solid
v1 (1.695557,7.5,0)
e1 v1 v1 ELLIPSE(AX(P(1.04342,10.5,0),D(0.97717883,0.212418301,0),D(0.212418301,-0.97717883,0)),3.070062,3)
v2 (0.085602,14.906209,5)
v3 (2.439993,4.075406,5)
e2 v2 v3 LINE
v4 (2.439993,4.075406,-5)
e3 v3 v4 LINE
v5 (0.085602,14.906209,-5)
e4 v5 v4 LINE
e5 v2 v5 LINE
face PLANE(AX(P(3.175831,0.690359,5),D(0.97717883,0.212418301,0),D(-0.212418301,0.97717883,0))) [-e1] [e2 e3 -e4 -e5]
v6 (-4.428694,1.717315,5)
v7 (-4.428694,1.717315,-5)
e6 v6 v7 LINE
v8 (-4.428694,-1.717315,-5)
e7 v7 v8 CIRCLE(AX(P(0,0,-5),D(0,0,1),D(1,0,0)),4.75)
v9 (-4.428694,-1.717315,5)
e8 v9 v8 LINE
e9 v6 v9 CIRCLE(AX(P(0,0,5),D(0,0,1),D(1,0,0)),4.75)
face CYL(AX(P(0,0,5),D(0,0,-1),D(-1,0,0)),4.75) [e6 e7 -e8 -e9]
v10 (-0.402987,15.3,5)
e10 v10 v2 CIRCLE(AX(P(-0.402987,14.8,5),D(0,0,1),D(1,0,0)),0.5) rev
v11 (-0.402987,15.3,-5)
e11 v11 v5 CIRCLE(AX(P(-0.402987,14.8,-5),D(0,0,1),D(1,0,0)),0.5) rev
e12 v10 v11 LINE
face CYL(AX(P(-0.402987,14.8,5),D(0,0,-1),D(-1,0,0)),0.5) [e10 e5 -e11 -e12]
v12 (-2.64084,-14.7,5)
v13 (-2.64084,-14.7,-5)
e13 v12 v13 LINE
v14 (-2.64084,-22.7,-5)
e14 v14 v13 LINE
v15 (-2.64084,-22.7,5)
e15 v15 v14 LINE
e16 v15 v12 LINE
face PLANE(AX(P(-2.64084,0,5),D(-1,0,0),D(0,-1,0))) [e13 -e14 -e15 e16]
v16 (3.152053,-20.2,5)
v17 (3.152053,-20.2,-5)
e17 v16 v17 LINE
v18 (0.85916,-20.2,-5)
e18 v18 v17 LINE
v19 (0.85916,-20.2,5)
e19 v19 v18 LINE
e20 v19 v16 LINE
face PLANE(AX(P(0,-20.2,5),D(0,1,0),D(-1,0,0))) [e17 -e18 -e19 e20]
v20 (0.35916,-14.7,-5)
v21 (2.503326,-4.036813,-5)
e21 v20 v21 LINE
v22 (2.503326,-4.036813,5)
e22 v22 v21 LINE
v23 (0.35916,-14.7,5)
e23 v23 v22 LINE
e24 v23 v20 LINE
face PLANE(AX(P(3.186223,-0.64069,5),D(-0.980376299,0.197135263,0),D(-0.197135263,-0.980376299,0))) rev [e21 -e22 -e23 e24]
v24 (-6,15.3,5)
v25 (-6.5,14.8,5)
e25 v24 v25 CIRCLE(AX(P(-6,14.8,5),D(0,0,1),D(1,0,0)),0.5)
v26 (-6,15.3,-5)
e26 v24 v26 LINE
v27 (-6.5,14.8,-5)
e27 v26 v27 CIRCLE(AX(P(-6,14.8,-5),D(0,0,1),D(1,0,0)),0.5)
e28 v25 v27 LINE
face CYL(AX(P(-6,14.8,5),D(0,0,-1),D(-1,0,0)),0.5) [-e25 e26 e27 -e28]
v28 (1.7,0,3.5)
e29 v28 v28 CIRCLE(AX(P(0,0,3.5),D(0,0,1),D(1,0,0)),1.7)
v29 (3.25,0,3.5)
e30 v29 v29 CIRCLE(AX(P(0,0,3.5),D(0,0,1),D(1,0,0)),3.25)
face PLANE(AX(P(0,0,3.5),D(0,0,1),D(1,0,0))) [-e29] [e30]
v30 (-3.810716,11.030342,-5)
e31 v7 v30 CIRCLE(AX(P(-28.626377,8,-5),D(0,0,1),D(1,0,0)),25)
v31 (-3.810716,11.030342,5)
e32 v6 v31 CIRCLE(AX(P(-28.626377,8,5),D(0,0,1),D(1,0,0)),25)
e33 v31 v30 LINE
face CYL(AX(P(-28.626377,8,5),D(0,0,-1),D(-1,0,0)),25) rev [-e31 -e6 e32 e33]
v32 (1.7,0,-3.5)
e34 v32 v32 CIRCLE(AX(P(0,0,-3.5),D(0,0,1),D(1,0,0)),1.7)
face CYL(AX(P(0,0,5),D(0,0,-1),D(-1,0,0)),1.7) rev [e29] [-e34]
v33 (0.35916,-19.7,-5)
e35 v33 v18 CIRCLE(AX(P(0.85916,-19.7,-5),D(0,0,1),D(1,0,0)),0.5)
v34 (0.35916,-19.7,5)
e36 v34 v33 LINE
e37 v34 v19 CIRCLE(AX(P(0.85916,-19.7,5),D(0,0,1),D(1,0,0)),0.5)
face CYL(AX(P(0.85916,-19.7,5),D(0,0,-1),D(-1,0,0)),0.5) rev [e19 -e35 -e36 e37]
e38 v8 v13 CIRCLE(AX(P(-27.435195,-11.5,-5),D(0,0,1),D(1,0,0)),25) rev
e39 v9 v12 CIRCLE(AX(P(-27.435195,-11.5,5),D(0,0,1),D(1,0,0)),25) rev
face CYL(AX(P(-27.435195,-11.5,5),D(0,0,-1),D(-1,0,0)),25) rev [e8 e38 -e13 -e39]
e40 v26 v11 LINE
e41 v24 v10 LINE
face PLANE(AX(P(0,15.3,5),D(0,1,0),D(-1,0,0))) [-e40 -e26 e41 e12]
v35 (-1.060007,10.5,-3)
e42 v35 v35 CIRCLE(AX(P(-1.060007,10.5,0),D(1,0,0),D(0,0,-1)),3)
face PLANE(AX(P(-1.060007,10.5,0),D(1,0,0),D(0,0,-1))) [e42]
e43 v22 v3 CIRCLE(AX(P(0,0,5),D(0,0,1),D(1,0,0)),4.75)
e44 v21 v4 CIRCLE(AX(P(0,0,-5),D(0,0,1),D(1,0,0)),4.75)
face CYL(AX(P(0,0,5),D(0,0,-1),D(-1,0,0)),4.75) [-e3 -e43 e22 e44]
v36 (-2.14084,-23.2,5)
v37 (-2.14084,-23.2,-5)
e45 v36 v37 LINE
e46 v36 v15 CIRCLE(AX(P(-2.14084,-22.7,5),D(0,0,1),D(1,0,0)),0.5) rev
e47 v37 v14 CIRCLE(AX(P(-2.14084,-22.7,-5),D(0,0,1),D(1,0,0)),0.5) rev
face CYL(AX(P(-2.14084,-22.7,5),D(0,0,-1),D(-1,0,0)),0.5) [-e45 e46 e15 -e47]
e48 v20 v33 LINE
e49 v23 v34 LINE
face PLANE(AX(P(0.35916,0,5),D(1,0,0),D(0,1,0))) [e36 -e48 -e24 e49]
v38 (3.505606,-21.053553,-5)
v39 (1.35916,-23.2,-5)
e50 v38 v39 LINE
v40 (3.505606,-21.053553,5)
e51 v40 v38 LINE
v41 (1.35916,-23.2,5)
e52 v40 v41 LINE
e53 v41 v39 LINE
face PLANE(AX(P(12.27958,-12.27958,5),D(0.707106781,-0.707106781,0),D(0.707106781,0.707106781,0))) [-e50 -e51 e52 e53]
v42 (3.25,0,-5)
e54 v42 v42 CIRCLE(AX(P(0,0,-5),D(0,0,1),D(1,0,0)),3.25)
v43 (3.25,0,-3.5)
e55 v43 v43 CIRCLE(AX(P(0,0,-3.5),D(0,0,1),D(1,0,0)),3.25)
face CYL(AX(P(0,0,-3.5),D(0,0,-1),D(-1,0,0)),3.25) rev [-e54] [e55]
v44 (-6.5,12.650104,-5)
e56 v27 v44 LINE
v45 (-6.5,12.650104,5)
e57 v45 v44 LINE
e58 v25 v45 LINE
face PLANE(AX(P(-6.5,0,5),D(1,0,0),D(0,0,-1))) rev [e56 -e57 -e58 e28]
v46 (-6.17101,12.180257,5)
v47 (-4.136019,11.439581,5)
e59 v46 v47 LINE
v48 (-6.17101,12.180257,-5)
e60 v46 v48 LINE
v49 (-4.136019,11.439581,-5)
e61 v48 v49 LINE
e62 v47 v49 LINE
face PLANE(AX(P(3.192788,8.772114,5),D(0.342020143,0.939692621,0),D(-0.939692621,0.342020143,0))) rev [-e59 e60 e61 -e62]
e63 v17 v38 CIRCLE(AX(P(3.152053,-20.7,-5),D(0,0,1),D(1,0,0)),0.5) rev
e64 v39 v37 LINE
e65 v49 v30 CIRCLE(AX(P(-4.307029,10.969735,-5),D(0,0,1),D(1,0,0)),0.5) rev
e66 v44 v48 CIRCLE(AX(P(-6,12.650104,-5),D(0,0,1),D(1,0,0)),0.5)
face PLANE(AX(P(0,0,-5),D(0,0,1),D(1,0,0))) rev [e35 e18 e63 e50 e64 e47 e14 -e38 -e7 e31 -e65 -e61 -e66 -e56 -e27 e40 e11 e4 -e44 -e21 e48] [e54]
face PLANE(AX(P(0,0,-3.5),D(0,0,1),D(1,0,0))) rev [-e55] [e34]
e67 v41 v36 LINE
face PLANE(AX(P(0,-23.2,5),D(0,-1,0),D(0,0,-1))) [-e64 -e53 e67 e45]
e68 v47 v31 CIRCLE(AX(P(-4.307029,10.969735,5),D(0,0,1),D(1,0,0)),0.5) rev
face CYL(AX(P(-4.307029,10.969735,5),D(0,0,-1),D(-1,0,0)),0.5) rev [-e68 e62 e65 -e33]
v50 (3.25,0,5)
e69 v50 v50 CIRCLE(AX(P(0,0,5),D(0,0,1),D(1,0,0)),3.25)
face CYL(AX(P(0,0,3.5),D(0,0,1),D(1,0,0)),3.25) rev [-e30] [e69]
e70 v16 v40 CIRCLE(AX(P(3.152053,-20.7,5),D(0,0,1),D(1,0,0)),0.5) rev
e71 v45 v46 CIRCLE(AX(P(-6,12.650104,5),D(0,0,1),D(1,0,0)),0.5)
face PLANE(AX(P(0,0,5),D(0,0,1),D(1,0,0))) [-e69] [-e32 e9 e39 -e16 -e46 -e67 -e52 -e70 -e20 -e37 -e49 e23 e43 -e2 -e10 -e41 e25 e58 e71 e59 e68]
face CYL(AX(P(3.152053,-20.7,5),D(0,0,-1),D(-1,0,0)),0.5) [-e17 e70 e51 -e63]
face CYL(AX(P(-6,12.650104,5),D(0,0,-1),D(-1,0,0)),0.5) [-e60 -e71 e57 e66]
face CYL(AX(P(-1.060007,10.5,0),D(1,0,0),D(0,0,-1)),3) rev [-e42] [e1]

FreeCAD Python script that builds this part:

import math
import FreeCAD as App
import Part
import Sketcher

V = App.Vector
Q = App.Units.Quantity

doc = App.newDocument("Part")
body = doc.addObject("PartDesign::Body", "Body")

# Sketch on XY plane
sketch1 = body.newObject("Sketcher::SketchObject", "Sketch")
sketch1.AttachmentSupport = (doc.getObject("XY_Plane"), [""])
sketch1.MapMode = "FlatFace"
sketch1.addGeometry([
    Part.LineSegment(V(-0.402987, 15.3, 0), V(-6, 15.3, 0)),  # 0
    Part.ArcOfCircle(Part.Circle(V(-6, 14.8, 0), V(0, 0, 1), 0.5), math.radians(90), math.radians(180)),  # 1
    Part.LineSegment(V(-6.5, 14.8, 0), V(-6.5, 12.650104, 0)),  # 2
    Part.ArcOfCircle(Part.Circle(V(-6, 12.650104, 0), V(0, 0, 1), 0.5), math.radians(180), math.radians(250)),  # 3
    Part.LineSegment(V(-6.17101, 12.180257, 0), V(-4.136019, 11.439581, 0)),  # 4
    Part.ArcOfCircle(Part.Circle(V(-4.307029, 10.969735, 0), V(0, 0, 1), 0.5), math.radians(6.962153), math.radians(70)),  # 5
    Part.ArcOfCircle(Part.Circle(V(-28.626377, 8, 0), V(0, 0, 1), 25), math.radians(-14.554892), math.radians(6.962152)),  # 6
    Part.ArcOfCircle(Part.Circle(V(0, 0, 0), V(0, 0, 1), 4.75), math.radians(158.805203), math.radians(201.194797)),  # 7
    Part.ArcOfCircle(Part.Circle(V(-27.435184, -11.499996, 0), V(0, 0, 1), 24.999989), math.radians(22.448026), math.radians(23.035875)),  # 8
    Part.ArcOfCircle(Part.Circle(V(-27.435195, -11.5, 0), V(0, 0, 1), 25), math.radians(-7.354035), math.radians(22.448026)),  # 9
    Part.LineSegment(V(-2.64084, -14.7, 0), V(-2.64084, -22.7, 0)),  # 10
    Part.ArcOfCircle(Part.Circle(V(-2.14084, -22.7, 0), V(0, 0, 1), 0.5), math.radians(180), math.radians(270)),  # 11
    Part.LineSegment(V(-2.14084, -23.2, 0), V(1.35916, -23.2, 0)),  # 12
    Part.LineSegment(V(1.35916, -23.2, 0), V(3.505606, -21.053553, 0)),  # 13
    Part.ArcOfCircle(Part.Circle(V(3.152053, -20.7, 0), V(0, 0, 1), 0.5), math.radians(-45), math.radians(90)),  # 14
    Part.LineSegment(V(3.152053, -20.2, 0), V(0.85916, -20.2, 0)),  # 15
    Part.ArcOfCircle(Part.Circle(V(0.85916, -19.7, 0), V(0, 0, 1), 0.5), math.radians(180), math.radians(270)),  # 16
    Part.LineSegment(V(0.35916, -19.7, 0), V(0.35916, -14.7, 0)),  # 17
    Part.LineSegment(V(0.35916, -14.7, 0), V(2.503326, -4.036813, 0)),  # 18
    Part.ArcOfCircle(Part.Circle(V(0, 0, 0), V(0, 0, 1), 4.75), math.radians(-58.195936), math.radians(0)),  # 19
    Part.ArcOfCircle(Part.Circle(V(0, 0, 0), V(0, 0, 1), 4.75), math.radians(0), math.radians(59.090557)),  # 20
    Part.LineSegment(V(2.439993, 4.075406, 0), V(0.085602, 14.906209, 0)),  # 21
    Part.ArcOfCircle(Part.Circle(V(-0.402987, 14.8, 0), V(0, 0, 1), 0.5), math.radians(12.264109), math.radians(90)),  # 22
    Part.Circle(V(0, 0, 0), V(0, 0, 1), 1.7),  # 23
], False)
sketch1.addConstraint([
    Sketcher.Constraint("Coincident", 0, 2, 1, 1),
    Sketcher.Constraint("Coincident", 1, 2, 2, 1),
    Sketcher.Constraint("Coincident", 2, 2, 3, 1),
    Sketcher.Constraint("Coincident", 3, 2, 4, 1),
    Sketcher.Constraint("Coincident", 4, 2, 5, 2),
    Sketcher.Constraint("Coincident", 5, 1, 6, 2),
    Sketcher.Constraint("Coincident", 6, 1, 7, 1),
    Sketcher.Constraint("Coincident", 7, 2, 8, 2),
    Sketcher.Constraint("Coincident", 8, 1, 9, 2),
    Sketcher.Constraint("Coincident", 9, 1, 10, 1),
    Sketcher.Constraint("Coincident", 10, 2, 11, 1),
    Sketcher.Constraint("Coincident", 11, 2, 12, 1),
    Sketcher.Constraint("Coincident", 12, 2, 13, 1),
    Sketcher.Constraint("Coincident", 13, 2, 14, 1),
    Sketcher.Constraint("Coincident", 14, 2, 15, 1),
    Sketcher.Constraint("Coincident", 15, 2, 16, 2),
    Sketcher.Constraint("Coincident", 16, 1, 17, 1),
    Sketcher.Constraint("Coincident", 17, 2, 18, 1),
    Sketcher.Constraint("Coincident", 18, 2, 19, 1),
    Sketcher.Constraint("Coincident", 19, 2, 20, 1),
    Sketcher.Constraint("Coincident", 20, 2, 21, 1),
    Sketcher.Constraint("Coincident", 21, 2, 22, 1),
    Sketcher.Constraint("Coincident", 22, 2, 0, 1),
    Sketcher.Constraint("Horizontal", 0),
    Sketcher.Constraint("Vertical", 2),
    Sketcher.Constraint("Vertical", 10),
    Sketcher.Constraint("Horizontal", 12),
    Sketcher.Constraint("Horizontal", 15),
    Sketcher.Constraint("Vertical", 17),
    Sketcher.Constraint("Coincident", 7, 3, -1, 1),
    Sketcher.Constraint("Coincident", 19, 3, -1, 1),
    Sketcher.Constraint("Coincident", 20, 3, -1, 1),
    Sketcher.Constraint("Coincident", 23, 3, -1, 1),
    Sketcher.Constraint("PointOnObject", 19, 2, -1),
    Sketcher.Constraint("Radius", 6, Q("25 mm")),
    Sketcher.Constraint("Radius", 9, Q("25 mm")),
    Sketcher.Constraint("Diameter", 23, Q("3.4 mm")),
    Sketcher.Constraint("Radius", 1, Q("0.5 mm")),
    Sketcher.Constraint("Radius", 3, Q("0.5 mm")),
    Sketcher.Constraint("Radius", 5, Q("0.5 mm")),
    Sketcher.Constraint("Radius", 11, Q("0.5 mm")),
    Sketcher.Constraint("Radius", 14, Q("0.5 mm")),
    Sketcher.Constraint("Radius", 16, Q("0.5 mm")),
    Sketcher.Constraint("Radius", 22, Q("0.5 mm")),
    Sketcher.Constraint("DistanceY", 10, 2, 10, 1, Q("8 mm")),
    Sketcher.Constraint("DistanceY", 17, 1, 17, 2, Q("5 mm")),
    Sketcher.Constraint("Radius", 7, Q("4.75 mm")),
    Sketcher.Constraint("Radius", 19, Q("4.75 mm")),
    Sketcher.Constraint("DistanceX", 12, 1, 12, 2, Q("3.5 mm")),
    Sketcher.Constraint("DistanceX", 1, 3, -1, 1, Q("6 mm")),
    Sketcher.Constraint("DistanceY", -1, 1, 6, 3, Q("8 mm")),
    Sketcher.Constraint("DistanceX", 0, 2, -1, 1, Q("6 mm")),
    Sketcher.Constraint("DistanceY", 11, 3, 14, 3, Q("2 mm")),
    Sketcher.Constraint("DistanceX", 11, 3, 16, 3, Q("3 mm")),
    Sketcher.Constraint("DistanceY", 16, 3, 9, 1, Q("5 mm")),
    Sketcher.Constraint("DistanceX", 11, 2, 16, 3, Q("3 mm")),
    Sketcher.Constraint("DistanceY", 14, 3, 16, 1, Q("1 mm")),
    Sketcher.Constraint("DistanceY", -1, 1, 1, 3, Q("14.8 mm")),
    Sketcher.Constraint("DistanceY", 9, 3, -1, 1, Q("11.5 mm")),
    Sketcher.Constraint("DistanceY", 11, 3, -1, 1, Q("22.7 mm")),
    Sketcher.Constraint("DistanceY", -1, 1, 1, 2, Q("14.8 mm")),
    Sketcher.Constraint("DistanceX", 15, 2, 12, 2, Q("0.5 mm")),
    Sketcher.Constraint("Radius", 8, Q("24.999989 mm")),
    Sketcher.Constraint("DistanceX", -1, 1, 21, 2, Q("0.085602 mm")),
    Sketcher.Constraint("DistanceY", 8, 3, 3, 3, Q("24.150099 mm")),
    Sketcher.Constraint("DistanceX", 0, 2, 0, 1, Q("5.597013 mm")),
    Sketcher.Constraint("DistanceX", 15, 2, 15, 1, Q("2.292893 mm")),
    Sketcher.Constraint("DistanceY", 2, 2, 2, 1, Q("2.149896 mm")),
    Sketcher.Constraint("DistanceX", 5, 3, -1, 1, Q("4.307029 mm")),
    Sketcher.Constraint("DistanceX", 11, 3, -1, 1, Q("2.14084 mm")),
    Sketcher.Constraint("DistanceX", 3, 2, -1, 1, Q("6.17101 mm")),
    Sketcher.Constraint("DistanceX", 4, 2, -1, 1, Q("4.136019 mm")),
    Sketcher.Constraint("DistanceY", -1, 1, 4, 2, Q("11.439581 mm")),
    Sketcher.Constraint("DistanceY", -1, 1, 5, 1, Q("11.030342 mm")),
    Sketcher.Constraint("DistanceY", 8, 1, -1, 1, Q("1.95387 mm")),
    Sketcher.Constraint("DistanceY", -1, 1, 21, 2, Q("14.906209 mm")),
    Sketcher.Constraint("DistanceY", 5, 3, 3, 3, Q("1.680369 mm")),
    Sketcher.Constraint("Distance", 13, Q("3.035534 mm")),
    Sketcher.Constraint("Distance", 18, Q("10.876627 mm")),
    Sketcher.Constraint("Distance", 21, Q("11.083747 mm")),
    Sketcher.Constraint("DistanceX", -1, 1, 14, 3, Q("3.152053 mm")),
])
pad1 = body.newObject("PartDesign::Pad", "Pad")
pad1.Profile = sketch1
pad1.Length = 10
pad1.Midplane = True

# Sketch on XY plane
sketch2 = body.newObject("Sketcher::SketchObject", "Sketch001")
sketch2.AttachmentSupport = (doc.getObject("XY_Plane"), [""])
sketch2.MapMode = "FlatFace"
sketch2.AttachmentOffset = App.Placement(V(0, 0, 5), App.Rotation())
sketch2.addGeometry(Part.Circle(V(0, 0, 0), V(0, 0, 1), 3.2), False)
sketch2.addConstraint([
    Sketcher.Constraint("Coincident", 0, 3, -1, 1),
    Sketcher.Constraint("Diameter", 0, Q("6.5 mm")),
])
pocket1 = body.newObject("PartDesign::Pocket", "Pocket")
pocket1.Profile = sketch2
pocket1.Length = 1.5

# Sketch on XY plane
sketch3 = body.newObject("Sketcher::SketchObject", "Sketch002")
sketch3.AttachmentSupport = (doc.getObject("XY_Plane"), [""])
sketch3.MapMode = "FlatFace"
sketch3.AttachmentOffset = App.Placement(V(0, 0, -5), App.Rotation())
sketch3.addGeometry(Part.Circle(V(0, 0, 0), V(0, 0, 1), 3.2), False)
sketch3.addConstraint([
    Sketcher.Constraint("Coincident", 0, 3, -1, 1),
    Sketcher.Constraint("Diameter", 0, Q("6.5 mm")),
])
pocket2 = body.newObject("PartDesign::Pocket", "Pocket001")
pocket2.Profile = sketch3
pocket2.Length = 1.5
pocket2.Reversed = True

# Sketch on YZ plane
sketch4 = body.newObject("Sketcher::SketchObject", "Sketch003")
sketch4.AttachmentSupport = (doc.getObject("YZ_Plane"), [""])
sketch4.MapMode = "FlatFace"
sketch4.AttachmentOffset = App.Placement(V(0, 0, 2.43999), App.Rotation())
sketch4.addGeometry(Part.Circle(V(10.5, 0, 0), V(0, 0, 1), 3), False)
sketch4.addConstraint([
    Sketcher.Constraint("PointOnObject", 0, 3, -1),
    Sketcher.Constraint("Diameter", 0, Q("6 mm")),
    Sketcher.Constraint("DistanceX", -1, 1, 0, 3, Q("10.5 mm")),
])
pocket3 = body.newObject("PartDesign::Pocket", "Pocket002")
pocket3.Profile = sketch4
pocket3.Length = 3.5

doc.recompute()
